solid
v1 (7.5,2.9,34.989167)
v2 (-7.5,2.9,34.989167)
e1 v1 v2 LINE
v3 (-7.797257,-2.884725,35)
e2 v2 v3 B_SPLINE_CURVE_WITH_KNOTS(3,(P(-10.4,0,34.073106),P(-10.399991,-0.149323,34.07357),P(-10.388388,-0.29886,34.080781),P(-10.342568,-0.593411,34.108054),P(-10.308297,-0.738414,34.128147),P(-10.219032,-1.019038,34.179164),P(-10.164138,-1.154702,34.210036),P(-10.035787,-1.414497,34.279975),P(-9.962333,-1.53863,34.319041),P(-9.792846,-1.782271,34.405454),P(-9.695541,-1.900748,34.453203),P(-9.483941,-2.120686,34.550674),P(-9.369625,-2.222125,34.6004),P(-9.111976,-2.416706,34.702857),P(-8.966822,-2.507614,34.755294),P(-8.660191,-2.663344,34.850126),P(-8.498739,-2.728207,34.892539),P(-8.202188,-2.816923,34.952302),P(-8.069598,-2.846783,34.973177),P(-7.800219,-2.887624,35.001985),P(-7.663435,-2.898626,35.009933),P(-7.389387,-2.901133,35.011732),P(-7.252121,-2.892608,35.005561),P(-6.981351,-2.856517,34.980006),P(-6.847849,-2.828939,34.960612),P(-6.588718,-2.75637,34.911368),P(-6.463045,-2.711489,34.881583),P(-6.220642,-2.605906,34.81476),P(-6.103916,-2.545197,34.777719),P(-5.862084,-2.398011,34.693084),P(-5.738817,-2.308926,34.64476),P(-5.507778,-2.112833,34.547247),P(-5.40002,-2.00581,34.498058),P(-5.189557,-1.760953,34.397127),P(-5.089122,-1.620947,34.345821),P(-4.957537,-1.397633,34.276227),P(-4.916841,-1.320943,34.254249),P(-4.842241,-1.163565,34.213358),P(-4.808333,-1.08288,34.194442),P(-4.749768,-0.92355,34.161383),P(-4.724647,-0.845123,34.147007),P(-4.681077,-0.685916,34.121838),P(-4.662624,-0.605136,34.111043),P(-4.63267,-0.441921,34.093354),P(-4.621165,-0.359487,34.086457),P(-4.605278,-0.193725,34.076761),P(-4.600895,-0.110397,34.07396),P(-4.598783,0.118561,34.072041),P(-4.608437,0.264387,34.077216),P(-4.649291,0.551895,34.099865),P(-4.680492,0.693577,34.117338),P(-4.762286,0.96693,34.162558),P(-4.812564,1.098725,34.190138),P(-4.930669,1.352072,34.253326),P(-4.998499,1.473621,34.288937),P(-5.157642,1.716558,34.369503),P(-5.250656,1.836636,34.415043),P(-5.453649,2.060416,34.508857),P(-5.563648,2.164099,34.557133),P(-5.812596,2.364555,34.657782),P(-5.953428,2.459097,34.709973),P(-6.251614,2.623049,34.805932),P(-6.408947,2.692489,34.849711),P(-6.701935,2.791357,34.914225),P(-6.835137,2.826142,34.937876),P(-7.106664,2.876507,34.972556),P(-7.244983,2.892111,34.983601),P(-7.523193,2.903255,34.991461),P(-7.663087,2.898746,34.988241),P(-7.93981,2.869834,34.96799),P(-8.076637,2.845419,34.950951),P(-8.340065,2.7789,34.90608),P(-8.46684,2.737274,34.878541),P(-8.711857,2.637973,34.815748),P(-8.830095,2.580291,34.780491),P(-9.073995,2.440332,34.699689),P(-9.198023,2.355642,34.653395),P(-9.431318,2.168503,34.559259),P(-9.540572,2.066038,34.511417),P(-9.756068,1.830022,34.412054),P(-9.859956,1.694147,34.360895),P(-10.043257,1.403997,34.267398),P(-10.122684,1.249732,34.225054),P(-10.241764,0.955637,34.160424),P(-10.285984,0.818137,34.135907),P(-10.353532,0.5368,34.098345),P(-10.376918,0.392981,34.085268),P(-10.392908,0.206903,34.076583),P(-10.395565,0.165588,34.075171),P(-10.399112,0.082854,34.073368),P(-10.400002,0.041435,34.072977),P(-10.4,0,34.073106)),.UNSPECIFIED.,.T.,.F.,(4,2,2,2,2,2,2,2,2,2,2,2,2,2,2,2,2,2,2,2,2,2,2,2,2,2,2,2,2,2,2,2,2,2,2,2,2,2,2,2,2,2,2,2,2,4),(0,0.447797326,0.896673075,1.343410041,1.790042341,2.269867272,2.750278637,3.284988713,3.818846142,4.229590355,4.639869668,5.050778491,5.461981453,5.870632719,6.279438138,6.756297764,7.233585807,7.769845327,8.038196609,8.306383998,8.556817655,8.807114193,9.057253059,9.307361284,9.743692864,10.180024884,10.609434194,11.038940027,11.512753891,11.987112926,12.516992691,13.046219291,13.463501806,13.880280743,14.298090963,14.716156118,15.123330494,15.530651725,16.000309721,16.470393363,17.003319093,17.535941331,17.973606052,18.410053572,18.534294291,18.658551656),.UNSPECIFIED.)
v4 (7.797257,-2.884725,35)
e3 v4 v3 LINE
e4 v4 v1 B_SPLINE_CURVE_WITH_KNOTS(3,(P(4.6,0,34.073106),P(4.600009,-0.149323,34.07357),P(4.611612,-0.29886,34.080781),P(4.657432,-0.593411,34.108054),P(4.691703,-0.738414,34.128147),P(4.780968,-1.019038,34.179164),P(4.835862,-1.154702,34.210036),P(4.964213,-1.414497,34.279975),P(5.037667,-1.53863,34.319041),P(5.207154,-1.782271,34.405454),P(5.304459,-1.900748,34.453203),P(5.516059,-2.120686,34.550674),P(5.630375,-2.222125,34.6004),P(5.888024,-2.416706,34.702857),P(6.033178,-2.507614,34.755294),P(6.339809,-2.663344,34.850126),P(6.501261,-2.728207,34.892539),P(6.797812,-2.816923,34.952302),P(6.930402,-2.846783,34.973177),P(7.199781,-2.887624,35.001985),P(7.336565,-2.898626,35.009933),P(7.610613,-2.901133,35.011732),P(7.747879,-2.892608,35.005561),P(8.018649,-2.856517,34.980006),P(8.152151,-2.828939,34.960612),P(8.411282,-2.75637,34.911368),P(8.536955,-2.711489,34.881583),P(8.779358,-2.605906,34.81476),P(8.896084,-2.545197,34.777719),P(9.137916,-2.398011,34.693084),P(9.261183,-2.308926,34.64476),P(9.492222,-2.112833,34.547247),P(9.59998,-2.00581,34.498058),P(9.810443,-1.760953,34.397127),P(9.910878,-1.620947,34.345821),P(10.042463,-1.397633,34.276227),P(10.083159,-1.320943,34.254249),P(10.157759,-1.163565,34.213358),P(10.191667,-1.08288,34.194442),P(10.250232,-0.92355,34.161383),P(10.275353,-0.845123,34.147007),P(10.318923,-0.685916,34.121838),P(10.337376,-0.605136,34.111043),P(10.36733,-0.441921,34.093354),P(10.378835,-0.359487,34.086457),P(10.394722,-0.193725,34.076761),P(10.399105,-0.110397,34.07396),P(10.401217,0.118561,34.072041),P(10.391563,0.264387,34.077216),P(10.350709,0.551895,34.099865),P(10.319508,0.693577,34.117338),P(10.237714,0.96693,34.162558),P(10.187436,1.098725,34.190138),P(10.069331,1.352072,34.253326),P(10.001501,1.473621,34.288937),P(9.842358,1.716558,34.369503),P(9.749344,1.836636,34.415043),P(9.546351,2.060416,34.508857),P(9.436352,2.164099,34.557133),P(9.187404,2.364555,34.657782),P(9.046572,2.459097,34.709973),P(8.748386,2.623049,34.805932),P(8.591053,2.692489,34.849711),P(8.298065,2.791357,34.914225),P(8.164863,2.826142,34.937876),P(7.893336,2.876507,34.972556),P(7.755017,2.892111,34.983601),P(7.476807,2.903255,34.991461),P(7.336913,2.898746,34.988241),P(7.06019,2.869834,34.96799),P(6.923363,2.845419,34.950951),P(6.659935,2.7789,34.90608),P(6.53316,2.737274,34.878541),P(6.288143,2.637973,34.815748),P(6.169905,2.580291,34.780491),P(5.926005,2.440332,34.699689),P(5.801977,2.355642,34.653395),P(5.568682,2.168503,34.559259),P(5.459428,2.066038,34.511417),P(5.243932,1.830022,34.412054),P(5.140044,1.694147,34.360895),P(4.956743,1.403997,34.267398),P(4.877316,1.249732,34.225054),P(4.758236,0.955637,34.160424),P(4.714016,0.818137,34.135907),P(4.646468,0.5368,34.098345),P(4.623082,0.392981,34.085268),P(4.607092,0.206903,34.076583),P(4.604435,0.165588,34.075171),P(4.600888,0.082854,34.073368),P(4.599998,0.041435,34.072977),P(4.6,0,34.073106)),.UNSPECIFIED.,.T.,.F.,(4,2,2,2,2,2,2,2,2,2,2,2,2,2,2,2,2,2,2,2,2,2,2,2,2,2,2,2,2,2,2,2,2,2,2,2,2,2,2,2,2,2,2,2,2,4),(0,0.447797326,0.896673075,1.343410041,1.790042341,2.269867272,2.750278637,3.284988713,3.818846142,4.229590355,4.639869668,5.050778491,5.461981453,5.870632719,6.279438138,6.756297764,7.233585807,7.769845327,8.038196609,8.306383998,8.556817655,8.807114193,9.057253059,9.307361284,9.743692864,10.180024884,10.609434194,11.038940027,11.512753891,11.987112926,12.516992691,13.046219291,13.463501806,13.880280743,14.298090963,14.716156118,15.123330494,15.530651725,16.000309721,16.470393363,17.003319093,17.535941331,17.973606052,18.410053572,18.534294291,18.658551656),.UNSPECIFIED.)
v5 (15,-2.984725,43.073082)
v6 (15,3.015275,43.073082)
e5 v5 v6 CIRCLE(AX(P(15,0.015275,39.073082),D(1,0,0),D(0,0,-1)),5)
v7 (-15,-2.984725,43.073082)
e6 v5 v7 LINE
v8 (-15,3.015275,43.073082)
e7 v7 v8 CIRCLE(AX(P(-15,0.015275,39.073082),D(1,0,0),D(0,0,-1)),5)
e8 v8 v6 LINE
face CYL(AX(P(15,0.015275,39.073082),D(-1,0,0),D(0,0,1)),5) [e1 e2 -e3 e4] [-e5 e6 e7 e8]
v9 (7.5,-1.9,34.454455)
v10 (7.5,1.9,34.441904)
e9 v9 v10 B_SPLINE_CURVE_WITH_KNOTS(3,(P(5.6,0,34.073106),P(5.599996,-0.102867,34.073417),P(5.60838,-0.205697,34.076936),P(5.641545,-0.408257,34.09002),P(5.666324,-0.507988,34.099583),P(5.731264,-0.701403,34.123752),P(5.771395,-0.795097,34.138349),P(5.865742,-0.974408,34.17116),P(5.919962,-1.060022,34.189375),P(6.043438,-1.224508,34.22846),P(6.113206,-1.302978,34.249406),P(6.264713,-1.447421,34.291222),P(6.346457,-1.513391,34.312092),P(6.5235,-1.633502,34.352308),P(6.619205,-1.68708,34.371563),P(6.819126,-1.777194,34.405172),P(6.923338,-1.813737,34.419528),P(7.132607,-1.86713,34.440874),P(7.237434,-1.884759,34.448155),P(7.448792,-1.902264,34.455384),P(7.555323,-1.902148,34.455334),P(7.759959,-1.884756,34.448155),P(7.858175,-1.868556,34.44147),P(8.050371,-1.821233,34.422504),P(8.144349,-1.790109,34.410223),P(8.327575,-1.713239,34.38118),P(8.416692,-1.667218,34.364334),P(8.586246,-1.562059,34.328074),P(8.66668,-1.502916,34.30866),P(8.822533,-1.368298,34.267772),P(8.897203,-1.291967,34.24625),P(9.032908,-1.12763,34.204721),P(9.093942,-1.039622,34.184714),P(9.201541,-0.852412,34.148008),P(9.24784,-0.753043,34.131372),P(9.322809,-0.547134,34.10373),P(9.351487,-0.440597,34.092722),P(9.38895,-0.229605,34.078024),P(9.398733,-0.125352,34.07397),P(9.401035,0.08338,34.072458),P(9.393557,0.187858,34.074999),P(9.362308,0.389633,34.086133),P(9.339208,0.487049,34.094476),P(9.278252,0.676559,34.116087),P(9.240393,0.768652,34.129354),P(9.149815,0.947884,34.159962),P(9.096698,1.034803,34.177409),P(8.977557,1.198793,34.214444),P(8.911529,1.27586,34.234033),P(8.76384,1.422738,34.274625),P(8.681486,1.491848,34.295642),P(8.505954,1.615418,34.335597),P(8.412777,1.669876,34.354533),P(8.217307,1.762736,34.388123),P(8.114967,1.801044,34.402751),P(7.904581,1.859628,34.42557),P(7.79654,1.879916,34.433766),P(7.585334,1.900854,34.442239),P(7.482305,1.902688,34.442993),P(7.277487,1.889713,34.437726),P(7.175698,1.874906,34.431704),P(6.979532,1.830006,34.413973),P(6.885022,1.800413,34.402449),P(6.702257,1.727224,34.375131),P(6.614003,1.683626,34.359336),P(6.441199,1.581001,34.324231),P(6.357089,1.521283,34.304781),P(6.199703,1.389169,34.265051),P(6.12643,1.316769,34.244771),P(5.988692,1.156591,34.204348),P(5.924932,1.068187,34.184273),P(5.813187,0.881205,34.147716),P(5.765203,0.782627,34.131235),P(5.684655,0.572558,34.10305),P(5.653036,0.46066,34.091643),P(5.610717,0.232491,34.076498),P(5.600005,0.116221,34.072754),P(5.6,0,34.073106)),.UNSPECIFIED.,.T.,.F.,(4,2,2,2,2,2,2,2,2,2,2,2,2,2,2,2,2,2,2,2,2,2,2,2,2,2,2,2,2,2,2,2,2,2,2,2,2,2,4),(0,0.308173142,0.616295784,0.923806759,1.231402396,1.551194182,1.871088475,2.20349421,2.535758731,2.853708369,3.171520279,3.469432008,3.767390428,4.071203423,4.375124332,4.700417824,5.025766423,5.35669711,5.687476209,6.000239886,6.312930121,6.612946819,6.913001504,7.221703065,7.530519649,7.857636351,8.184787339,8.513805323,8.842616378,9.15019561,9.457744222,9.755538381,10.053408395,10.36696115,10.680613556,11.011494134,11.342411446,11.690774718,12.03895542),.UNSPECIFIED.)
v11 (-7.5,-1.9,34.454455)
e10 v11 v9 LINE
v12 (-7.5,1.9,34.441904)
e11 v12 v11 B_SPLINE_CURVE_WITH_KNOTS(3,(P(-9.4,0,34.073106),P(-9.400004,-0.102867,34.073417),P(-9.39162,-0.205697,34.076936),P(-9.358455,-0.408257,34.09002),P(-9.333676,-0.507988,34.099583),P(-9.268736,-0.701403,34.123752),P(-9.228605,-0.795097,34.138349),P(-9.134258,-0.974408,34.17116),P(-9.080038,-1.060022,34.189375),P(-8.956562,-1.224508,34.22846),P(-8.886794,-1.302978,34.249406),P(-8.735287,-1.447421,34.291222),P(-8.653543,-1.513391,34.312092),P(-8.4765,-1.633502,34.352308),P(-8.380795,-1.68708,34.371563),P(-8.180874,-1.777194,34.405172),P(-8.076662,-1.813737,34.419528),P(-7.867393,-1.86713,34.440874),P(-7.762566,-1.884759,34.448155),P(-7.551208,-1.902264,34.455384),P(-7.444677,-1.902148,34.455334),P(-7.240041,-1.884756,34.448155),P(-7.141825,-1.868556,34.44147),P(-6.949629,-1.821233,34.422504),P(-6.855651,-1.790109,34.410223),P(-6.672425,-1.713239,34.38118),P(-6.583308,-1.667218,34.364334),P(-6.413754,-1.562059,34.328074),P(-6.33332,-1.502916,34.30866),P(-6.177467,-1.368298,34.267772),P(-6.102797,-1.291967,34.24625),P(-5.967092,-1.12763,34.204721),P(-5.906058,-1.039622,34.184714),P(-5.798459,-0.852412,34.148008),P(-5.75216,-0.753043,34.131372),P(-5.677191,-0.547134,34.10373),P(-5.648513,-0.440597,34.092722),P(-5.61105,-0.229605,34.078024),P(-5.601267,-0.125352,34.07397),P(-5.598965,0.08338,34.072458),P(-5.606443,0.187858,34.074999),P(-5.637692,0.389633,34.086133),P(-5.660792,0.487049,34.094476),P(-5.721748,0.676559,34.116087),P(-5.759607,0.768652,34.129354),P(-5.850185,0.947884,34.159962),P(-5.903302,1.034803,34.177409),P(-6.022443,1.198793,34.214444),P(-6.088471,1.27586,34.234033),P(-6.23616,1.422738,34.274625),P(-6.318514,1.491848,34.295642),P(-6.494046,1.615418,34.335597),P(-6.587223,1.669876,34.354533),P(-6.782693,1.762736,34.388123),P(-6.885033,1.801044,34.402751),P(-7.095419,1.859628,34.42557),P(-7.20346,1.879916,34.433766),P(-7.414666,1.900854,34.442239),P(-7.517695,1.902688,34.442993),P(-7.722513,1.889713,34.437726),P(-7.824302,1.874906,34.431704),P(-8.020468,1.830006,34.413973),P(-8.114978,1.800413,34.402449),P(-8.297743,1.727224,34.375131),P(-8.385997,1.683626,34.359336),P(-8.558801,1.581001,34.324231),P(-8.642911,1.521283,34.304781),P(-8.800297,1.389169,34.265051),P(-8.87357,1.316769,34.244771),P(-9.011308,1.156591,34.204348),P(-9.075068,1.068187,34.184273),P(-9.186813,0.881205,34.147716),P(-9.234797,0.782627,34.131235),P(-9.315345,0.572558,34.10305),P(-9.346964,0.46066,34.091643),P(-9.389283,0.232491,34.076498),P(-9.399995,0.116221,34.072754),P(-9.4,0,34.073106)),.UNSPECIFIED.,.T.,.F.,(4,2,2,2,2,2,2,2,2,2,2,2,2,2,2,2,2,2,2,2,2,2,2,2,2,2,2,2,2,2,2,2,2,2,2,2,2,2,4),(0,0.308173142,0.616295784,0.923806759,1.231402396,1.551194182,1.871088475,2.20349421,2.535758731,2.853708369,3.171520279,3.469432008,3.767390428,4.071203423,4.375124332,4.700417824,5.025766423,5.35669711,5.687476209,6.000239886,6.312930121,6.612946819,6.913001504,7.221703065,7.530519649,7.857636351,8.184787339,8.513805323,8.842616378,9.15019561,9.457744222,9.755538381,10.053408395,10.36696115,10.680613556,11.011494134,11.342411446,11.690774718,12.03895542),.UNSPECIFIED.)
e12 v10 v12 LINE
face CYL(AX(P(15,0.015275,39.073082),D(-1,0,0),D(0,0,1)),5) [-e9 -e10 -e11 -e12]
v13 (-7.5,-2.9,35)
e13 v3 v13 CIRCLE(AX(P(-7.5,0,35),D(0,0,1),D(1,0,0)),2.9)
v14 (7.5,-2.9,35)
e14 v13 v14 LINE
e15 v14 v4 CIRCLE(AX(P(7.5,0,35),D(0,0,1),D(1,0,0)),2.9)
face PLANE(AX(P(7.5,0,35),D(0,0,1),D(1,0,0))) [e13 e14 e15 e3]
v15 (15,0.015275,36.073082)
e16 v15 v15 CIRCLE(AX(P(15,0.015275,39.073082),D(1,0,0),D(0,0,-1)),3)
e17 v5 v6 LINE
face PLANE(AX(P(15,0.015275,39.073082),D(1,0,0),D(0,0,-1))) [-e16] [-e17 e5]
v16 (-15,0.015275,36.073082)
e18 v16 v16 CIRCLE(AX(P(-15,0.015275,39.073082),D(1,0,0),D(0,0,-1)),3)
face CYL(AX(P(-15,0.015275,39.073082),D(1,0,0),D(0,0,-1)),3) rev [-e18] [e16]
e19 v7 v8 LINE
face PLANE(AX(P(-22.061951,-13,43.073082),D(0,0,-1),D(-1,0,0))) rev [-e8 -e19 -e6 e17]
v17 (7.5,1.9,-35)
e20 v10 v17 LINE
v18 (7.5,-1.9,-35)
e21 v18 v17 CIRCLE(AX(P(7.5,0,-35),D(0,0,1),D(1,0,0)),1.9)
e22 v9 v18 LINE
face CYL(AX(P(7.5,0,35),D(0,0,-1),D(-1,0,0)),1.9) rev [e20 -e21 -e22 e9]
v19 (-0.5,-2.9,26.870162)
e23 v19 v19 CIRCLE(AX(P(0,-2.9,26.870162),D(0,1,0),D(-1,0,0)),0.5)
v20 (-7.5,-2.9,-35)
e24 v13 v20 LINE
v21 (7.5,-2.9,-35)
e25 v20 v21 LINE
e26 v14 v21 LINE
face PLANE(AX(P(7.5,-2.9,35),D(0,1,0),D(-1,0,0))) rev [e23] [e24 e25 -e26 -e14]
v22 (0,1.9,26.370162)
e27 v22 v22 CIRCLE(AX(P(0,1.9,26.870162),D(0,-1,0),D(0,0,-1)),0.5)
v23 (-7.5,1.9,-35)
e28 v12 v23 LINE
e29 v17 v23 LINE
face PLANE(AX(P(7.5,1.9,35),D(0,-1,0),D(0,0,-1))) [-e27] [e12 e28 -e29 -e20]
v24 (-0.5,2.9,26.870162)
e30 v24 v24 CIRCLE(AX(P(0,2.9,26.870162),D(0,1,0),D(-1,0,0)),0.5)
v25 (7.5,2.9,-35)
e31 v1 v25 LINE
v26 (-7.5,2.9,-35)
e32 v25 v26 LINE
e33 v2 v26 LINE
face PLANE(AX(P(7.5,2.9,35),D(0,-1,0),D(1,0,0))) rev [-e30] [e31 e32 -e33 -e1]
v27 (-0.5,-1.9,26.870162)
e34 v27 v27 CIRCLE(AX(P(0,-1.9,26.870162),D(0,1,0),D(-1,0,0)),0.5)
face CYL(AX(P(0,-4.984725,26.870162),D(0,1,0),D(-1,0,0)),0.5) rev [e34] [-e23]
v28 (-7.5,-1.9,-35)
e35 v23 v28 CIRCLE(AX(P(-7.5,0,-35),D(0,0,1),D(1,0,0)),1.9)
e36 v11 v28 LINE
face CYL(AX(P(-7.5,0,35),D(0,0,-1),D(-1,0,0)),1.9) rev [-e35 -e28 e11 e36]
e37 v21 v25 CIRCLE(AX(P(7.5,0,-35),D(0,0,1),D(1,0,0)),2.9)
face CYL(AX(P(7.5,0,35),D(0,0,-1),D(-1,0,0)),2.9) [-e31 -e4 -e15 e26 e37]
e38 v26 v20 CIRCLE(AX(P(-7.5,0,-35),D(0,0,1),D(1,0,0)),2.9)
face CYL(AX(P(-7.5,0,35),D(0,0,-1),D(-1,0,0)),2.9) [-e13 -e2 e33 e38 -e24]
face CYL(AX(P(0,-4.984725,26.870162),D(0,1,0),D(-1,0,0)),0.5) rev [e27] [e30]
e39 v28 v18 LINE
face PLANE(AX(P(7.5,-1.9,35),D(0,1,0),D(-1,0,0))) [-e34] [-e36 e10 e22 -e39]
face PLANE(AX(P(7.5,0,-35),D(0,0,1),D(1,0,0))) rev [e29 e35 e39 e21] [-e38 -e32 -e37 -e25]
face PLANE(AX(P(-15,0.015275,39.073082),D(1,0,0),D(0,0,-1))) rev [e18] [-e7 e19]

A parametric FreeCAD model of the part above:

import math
import FreeCAD as App
import Part
import Sketcher

V = App.Vector

doc = App.newDocument("Part")
params = doc.addObject("Spreadsheet::Sheet", "Params")
for row, (alias, value) in enumerate([
    ("sketch1_radius", "2.9 mm"),
    ("sketch1_radius2", "1.9 mm"),
    ("sketch1_width", "15 mm"),
    ("pad1_length", "70 mm"),
    ("sketch2_diameter", "10 mm"),
    ("pad2_length", "30 mm"),
    ("pocket1_length", "26 mm"),
    ("sketch4_diameter", "1 mm"),
    ("sketch5_diameter", "6 mm"),
], start=1):
    params.set(f"A{row}", alias)
    params.set(f"B{row}", "=" + value)
    params.setAlias(f"B{row}", alias)

body = doc.addObject("PartDesign::Body", "Body")

sketch1 = doc.addObject("Sketcher::SketchObject", "Sketch")
body.addObject(sketch1)
sketch1.AttachmentSupport = (doc.XY_Plane, [""])
sketch1.MapMode = "FlatFace"
sketch1.addGeometry([
    Part.LineSegment(V(-7.5, -2.9, 0), V(7.5, -2.9, 0)),
    Part.ArcOfCircle(Part.Circle(V(7.5, 0, 0), V(0, 0, 1), 2.9), math.radians(-90), math.radians(90)),
    Part.LineSegment(V(7.5, 2.9, 0), V(-7.5, 2.9, 0)),
    Part.ArcOfCircle(Part.Circle(V(-7.5, 0, 0), V(0, 0, 1), 2.9), math.radians(90), math.radians(270)),
    Part.LineSegment(V(7.5, -1.9, 0), V(-7.5, -1.9, 0)),
    Part.ArcOfCircle(Part.Circle(V(-7.5, 0, 0), V(0, 0, 1), 1.9), math.radians(90), math.radians(270)),
    Part.LineSegment(V(-7.5, 1.9, 0), V(7.5, 1.9, 0)),
    Part.ArcOfCircle(Part.Circle(V(7.5, 0, 0), V(0, 0, 1), 1.9), math.radians(-90), math.radians(90)),
], False)
sketch1.addConstraint([
    Sketcher.Constraint("Tangent", 0, 2, 1, 1),
    Sketcher.Constraint("Tangent", 1, 2, 2, 1),
    Sketcher.Constraint("Tangent", 2, 2, 3, 1),
    Sketcher.Constraint("Tangent", 3, 2, 0, 1),
    Sketcher.Constraint("Tangent", 4, 2, 5, 2),
    Sketcher.Constraint("Tangent", 5, 1, 6, 1),
    Sketcher.Constraint("Tangent", 6, 2, 7, 2),
    Sketcher.Constraint("Tangent", 7, 1, 4, 1),
    Sketcher.Constraint("Horizontal", 0),
    Sketcher.Constraint("Horizontal", 2),
    Sketcher.Constraint("Horizontal", 4),
    Sketcher.Constraint("Horizontal", 6),
    Sketcher.Constraint("Coincident", 5, 3, 3, 3),
    Sketcher.Constraint("Symmetric", 1, 3, 3, 3, -1, 1),
    Sketcher.Constraint("Vertical", 7, 3, 0, 2),
    Sketcher.Constraint("Radius", 1, 2.9),
    Sketcher.Constraint("Radius", 5, 1.9),
    Sketcher.Constraint("DistanceX", 0, 1, 0, 2, 15.0),
])
sketch1.setExpression("Constraints[15]", "Params.sketch1_radius")
sketch1.setExpression("Constraints[16]", "Params.sketch1_radius2")
sketch1.setExpression("Constraints[17]", "Params.sketch1_width")
pad1 = doc.addObject("PartDesign::Pad", "Pad")
body.addObject(pad1)
pad1.Profile = sketch1
pad1.setExpression("Length", "Params.pad1_length")
pad1.Midplane = True

sketch2 = doc.addObject("Sketcher::SketchObject", "Sketch001")
body.addObject(sketch2)
sketch2.AttachmentSupport = (doc.YZ_Plane, [""])
sketch2.MapMode = "FlatFace"
sketch2.addGeometry(Part.Circle(V(0, 39, 0), V(0, 0, 1), 5), False)
sketch2.addConstraint([
    Sketcher.Constraint("Diameter", 0, 10.0),
    Sketcher.Constraint("DistanceX", -1, 1, 0, 3, 0.015275),
    Sketcher.Constraint("DistanceY", -1, 1, 0, 3, 39.073082),
])
sketch2.setExpression("Constraints[0]", "Params.sketch2_diameter")
pad2 = doc.addObject("PartDesign::Pad", "Pad001")
body.addObject(pad2)
pad2.Profile = sketch2
pad2.setExpression("Length", "Params.pad2_length")
pad2.Midplane = True

sketch3 = doc.addObject("Sketcher::SketchObject", "Sketch002")
body.addObject(sketch3)
sketch3.AttachmentSupport = (doc.XZ_Plane, [""])
sketch3.MapMode = "FlatFace"
sketch3.addGeometry([
    Part.LineSegment(V(-22, 43, 0), V(-22, 50, 0)),
    Part.LineSegment(V(-22, 50, 0), V(18, 50, 0)),
    Part.LineSegment(V(18, 50, 0), V(18, 43, 0)),
    Part.LineSegment(V(18, 43, 0), V(-22, 43, 0)),
], False)
sketch3.addConstraint([
    Sketcher.Constraint("Coincident", 0, 2, 1, 1),
    Sketcher.Constraint("Coincident", 1, 2, 2, 1),
    Sketcher.Constraint("Coincident", 2, 2, 3, 1),
    Sketcher.Constraint("Coincident", 3, 2, 0, 1),
    Sketcher.Constraint("Vertical", 0),
    Sketcher.Constraint("Horizontal", 1),
    Sketcher.Constraint("Vertical", 2),
    Sketcher.Constraint("Horizontal", 3),
    Sketcher.Constraint("DistanceX", 1, 1, 1, 2, 39.744762),
    Sketcher.Constraint("DistanceY", 0, 1, 0, 2, 6.949904),
    Sketcher.Constraint("DistanceX", 0, 2, -1, 1, 22.061951),
    Sketcher.Constraint("DistanceY", -1, 1, 0, 2, 50.022986),
])
pocket1 = doc.addObject("PartDesign::Pocket", "Pocket")
body.addObject(pocket1)
pocket1.Profile = sketch3
pocket1.setExpression("Length", "Params.pocket1_length")
pocket1.Midplane = True

sketch4 = doc.addObject("Sketcher::SketchObject", "Sketch003")
body.addObject(sketch4)
sketch4.AttachmentSupport = (doc.XZ_Plane, [""])
sketch4.MapMode = "FlatFace"
sketch4.AttachmentOffset = App.Placement(V(0, 0, -2.9), App.Rotation())
sketch4.addGeometry(Part.Circle(V(0, 26.9, 0), V(0, 0, 1), 0.5), False)
sketch4.addConstraint([
    Sketcher.Constraint("PointOnObject", 0, 3, -2),
    Sketcher.Constraint("Diameter", 0, 1.0),
    Sketcher.Constraint("DistanceY", -1, 1, 0, 3, 26.870162),
])
sketch4.setExpression("Constraints[1]", "Params.sketch4_diameter")
pocket2 = doc.addObject("PartDesign::Pocket", "Pocket001")
body.addObject(pocket2)
pocket2.Profile = sketch4
pocket2.Type = "ThroughAll"
pocket2.Reversed = True

sketch5 = doc.addObject("Sketcher::SketchObject", "Sketch004")
body.addObject(sketch5)
sketch5.AttachmentSupport = (doc.YZ_Plane, [""])
sketch5.MapMode = "FlatFace"
sketch5.AttachmentOffset = App.Placement(V(0, 0, 15), App.Rotation())
sketch5.addGeometry(Part.Circle(V(0, 39.1, 0), V(0, 0, 1), 3), False)
sketch5.addConstraint([
    Sketcher.Constraint("Diameter", 0, 6.0),
    Sketcher.Constraint("DistanceX", -1, 1, 0, 3, 0.015275),
    Sketcher.Constraint("DistanceY", -1, 1, 0, 3, 39.073082),
])
sketch5.setExpression("Constraints[0]", "Params.sketch5_diameter")
pocket3 = doc.addObject("PartDesign::Pocket", "Pocket002")
body.addObject(pocket3)
pocket3.Profile = sketch5
pocket3.Type = "ThroughAll"

doc.recompute()
